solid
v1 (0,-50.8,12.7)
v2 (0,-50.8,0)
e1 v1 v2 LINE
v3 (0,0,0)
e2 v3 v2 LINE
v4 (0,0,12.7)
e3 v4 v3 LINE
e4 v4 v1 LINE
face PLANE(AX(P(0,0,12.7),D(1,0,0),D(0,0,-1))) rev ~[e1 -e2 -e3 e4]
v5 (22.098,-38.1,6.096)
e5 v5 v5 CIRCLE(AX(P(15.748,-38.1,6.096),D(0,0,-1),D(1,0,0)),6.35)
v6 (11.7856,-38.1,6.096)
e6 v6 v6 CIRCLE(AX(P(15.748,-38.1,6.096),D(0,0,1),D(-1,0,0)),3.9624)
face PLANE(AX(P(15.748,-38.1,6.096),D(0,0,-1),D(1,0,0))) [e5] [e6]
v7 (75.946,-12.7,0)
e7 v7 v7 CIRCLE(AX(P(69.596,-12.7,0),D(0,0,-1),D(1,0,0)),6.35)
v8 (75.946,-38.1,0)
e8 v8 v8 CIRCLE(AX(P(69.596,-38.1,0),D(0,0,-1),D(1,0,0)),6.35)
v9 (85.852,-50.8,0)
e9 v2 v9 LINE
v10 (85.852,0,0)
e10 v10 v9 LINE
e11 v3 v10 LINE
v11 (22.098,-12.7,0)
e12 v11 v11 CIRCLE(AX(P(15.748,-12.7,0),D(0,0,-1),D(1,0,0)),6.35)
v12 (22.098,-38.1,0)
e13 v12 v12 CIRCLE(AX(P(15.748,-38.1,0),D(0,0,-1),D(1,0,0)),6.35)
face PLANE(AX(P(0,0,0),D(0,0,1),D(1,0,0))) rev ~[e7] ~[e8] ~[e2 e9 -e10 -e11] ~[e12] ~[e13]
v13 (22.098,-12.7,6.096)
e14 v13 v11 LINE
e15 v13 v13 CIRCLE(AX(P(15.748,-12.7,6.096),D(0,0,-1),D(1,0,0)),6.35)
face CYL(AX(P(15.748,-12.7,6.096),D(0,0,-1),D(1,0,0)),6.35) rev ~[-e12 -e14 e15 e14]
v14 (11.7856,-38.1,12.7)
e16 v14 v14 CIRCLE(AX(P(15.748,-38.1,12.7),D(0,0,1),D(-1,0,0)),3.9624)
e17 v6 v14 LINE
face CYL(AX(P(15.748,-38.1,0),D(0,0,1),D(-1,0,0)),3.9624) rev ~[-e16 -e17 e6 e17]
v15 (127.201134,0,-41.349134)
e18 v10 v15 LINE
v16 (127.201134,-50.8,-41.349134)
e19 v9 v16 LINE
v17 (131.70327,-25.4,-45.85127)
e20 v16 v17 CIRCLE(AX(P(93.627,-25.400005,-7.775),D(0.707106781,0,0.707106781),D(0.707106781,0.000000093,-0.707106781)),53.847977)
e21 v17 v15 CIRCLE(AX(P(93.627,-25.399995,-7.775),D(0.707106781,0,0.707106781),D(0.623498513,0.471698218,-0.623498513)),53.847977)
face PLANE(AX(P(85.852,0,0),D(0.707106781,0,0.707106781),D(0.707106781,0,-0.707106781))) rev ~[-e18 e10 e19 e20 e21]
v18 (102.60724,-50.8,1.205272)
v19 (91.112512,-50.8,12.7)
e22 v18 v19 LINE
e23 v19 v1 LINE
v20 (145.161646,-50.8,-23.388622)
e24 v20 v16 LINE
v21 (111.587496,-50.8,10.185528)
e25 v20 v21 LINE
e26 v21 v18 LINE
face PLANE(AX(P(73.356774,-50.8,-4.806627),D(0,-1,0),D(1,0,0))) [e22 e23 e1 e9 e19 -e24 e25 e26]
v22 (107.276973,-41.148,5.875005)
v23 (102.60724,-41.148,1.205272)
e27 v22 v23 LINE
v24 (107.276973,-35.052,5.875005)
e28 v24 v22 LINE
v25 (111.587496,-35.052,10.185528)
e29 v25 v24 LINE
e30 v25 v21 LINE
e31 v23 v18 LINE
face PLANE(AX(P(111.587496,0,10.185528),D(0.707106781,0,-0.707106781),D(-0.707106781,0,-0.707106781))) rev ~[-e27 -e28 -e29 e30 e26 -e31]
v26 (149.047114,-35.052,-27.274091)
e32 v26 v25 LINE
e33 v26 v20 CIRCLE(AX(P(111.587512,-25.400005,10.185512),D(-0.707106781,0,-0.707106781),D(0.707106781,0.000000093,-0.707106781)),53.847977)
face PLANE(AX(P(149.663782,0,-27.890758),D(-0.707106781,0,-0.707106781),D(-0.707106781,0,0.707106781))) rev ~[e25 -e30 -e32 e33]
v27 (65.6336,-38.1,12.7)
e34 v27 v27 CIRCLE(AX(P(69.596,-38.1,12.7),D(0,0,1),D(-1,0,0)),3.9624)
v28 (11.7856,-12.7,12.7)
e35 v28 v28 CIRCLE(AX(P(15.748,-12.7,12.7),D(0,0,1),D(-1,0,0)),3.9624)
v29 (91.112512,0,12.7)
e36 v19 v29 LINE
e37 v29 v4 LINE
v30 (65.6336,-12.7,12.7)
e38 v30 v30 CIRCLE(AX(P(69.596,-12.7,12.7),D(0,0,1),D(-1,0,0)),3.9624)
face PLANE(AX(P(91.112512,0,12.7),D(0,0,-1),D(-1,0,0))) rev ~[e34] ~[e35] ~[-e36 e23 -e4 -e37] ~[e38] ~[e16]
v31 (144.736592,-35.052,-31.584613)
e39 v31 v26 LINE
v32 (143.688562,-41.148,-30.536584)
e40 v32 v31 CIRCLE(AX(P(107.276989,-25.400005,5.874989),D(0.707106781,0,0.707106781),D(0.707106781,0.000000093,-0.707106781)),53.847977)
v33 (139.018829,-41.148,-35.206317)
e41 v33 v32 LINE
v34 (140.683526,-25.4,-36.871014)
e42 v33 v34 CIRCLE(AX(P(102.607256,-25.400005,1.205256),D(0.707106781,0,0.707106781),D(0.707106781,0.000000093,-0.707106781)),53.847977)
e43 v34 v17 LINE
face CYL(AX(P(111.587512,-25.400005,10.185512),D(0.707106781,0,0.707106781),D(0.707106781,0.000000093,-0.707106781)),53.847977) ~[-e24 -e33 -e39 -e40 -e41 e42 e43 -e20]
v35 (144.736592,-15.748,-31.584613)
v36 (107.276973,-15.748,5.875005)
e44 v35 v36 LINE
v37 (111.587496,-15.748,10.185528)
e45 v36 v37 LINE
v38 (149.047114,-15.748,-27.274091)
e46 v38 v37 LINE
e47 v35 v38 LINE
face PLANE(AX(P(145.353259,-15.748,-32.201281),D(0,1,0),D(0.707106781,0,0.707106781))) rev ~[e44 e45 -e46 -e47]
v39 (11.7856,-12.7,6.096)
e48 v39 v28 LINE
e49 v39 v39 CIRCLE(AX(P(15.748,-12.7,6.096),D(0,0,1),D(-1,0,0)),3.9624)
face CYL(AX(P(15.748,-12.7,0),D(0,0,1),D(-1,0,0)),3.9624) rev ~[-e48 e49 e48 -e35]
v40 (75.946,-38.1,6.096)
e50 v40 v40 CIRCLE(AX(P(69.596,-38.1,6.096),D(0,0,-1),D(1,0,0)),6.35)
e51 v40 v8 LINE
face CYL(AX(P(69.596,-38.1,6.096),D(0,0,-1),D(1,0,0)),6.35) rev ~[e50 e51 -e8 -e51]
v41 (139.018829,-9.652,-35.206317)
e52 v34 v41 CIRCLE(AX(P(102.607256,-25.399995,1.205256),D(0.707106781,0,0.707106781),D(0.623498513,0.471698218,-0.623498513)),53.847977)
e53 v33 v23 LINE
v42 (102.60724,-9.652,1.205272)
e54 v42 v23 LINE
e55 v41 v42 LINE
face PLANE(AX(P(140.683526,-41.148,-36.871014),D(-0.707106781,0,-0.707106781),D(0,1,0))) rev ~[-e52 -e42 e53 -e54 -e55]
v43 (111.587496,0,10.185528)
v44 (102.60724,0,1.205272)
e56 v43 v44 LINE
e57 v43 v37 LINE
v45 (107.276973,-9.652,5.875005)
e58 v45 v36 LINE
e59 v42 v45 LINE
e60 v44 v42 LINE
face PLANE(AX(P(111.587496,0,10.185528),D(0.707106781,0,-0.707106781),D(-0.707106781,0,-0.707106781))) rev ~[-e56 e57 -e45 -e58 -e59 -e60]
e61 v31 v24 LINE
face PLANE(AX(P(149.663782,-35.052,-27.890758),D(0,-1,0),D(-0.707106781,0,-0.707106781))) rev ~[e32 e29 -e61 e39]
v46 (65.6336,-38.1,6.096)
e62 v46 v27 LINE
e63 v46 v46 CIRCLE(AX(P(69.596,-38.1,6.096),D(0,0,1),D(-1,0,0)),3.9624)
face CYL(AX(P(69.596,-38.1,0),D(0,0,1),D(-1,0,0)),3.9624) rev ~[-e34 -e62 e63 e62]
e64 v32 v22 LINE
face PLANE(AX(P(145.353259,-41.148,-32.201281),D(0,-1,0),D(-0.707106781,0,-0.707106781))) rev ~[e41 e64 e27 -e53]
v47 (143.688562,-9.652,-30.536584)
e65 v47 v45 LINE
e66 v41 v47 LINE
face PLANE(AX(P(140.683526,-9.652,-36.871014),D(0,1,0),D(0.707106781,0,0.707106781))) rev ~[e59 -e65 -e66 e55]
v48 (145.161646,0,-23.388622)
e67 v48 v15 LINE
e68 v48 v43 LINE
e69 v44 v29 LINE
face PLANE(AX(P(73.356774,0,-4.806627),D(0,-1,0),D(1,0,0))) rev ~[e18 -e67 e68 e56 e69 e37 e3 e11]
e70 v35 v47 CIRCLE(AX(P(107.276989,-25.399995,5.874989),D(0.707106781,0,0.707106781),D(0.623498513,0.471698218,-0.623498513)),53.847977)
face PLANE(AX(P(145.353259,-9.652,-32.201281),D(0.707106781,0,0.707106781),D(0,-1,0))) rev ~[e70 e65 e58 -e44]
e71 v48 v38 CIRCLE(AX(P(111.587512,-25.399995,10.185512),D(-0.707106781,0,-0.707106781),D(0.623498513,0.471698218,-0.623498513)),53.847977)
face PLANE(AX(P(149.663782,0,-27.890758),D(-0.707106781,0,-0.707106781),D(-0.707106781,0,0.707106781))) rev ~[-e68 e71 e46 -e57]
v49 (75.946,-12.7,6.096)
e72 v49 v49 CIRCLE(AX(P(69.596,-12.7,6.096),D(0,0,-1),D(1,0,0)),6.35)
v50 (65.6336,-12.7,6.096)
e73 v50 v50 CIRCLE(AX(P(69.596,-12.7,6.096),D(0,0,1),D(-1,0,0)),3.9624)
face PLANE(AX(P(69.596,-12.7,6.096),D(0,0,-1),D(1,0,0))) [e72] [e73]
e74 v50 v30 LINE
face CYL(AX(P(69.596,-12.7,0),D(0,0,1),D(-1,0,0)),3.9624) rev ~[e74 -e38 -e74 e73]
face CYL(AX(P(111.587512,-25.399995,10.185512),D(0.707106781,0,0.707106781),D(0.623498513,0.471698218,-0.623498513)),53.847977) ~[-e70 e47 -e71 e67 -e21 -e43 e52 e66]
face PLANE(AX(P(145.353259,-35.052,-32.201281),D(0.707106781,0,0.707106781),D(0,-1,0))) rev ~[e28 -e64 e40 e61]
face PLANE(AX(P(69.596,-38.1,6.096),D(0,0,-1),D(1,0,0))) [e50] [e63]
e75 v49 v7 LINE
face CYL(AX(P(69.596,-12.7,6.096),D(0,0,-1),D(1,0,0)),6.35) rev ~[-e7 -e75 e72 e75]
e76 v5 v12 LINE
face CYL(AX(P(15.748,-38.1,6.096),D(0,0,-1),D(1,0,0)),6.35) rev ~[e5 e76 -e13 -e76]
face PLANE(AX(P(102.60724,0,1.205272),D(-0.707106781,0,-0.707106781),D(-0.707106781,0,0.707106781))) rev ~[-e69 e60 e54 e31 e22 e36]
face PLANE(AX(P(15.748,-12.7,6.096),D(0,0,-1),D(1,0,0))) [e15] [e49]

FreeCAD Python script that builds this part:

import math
import FreeCAD as App
import Part
import Sketcher
Q = App.Units.Quantity

doc = App.newDocument("Part")
body = doc.addObject("PartDesign::Body", "Body")

# Sketch on XZ plane
sketch1 = body.newObject("Sketcher::SketchObject", "Sketch")
sketch1.AttachmentSupport = (doc.getObject("XZ_Plane"), [""])
sketch1.MapMode = "FlatFace"
sketch1.addGeometry([
    Part.LineSegment(App.Vector(0, 0, 0), App.Vector(86, 0, 0)),  # 0
    Part.LineSegment(App.Vector(86, 0, 0), App.Vector(132, -46, 0)),  # 1
    Part.LineSegment(App.Vector(132, -46, 0), App.Vector(150, -28, 0)),  # 2
    Part.LineSegment(App.Vector(150, -28, 0), App.Vector(112, 10, 0)),  # 3
    Part.LineSegment(App.Vector(112, 10, 0), App.Vector(103, 1, 0)),  # 4
    Part.LineSegment(App.Vector(103, 1, 0), App.Vector(91, 13, 0)),  # 5
    Part.LineSegment(App.Vector(91, 13, 0), App.Vector(0, 13, 0)),  # 6
    Part.LineSegment(App.Vector(0, 13, 0), App.Vector(0, 0, 0)),  # 7
], False)
sketch1.addConstraint([
    Sketcher.Constraint("Coincident", 0, 2, 1, 1),
    Sketcher.Constraint("Coincident", 1, 2, 2, 1),
    Sketcher.Constraint("Coincident", 2, 2, 3, 1),
    Sketcher.Constraint("Coincident", 3, 2, 4, 1),
    Sketcher.Constraint("Coincident", 4, 2, 5, 1),
    Sketcher.Constraint("Coincident", 5, 2, 6, 1),
    Sketcher.Constraint("Coincident", 6, 2, 7, 1),
    Sketcher.Constraint("Coincident", 7, 2, 0, 1),
    Sketcher.Constraint("Horizontal", 0),
    Sketcher.Constraint("Horizontal", 6),
    Sketcher.Constraint("Vertical", 7),
    Sketcher.Constraint("Coincident", 7, 2, -1, 1),
    Sketcher.Constraint("Perpendicular", 1, 2),
    Sketcher.Constraint("Perpendicular", 2, 3),
    Sketcher.Constraint("Perpendicular", 3, 4),
    Sketcher.Constraint("Perpendicular", 4, 5),
    Sketcher.Constraint("Distance", 2, Q("1 in")),
    Sketcher.Constraint("DistanceY", 7, 2, 7, 1, Q("0.5 in")),
    Sketcher.Constraint("Angle", 1, Q("-45 deg")),
    Sketcher.Constraint("Distance", 4, Q("0.5 in")),
    Sketcher.Constraint("DistanceX", 0, 1, 0, 2, Q("3.38 in")),
    Sketcher.Constraint("Distance", 3, Q("2.12 in")),
    Sketcher.Constraint("Distance", 5, Q("0.64 in")),
])
pad1 = body.newObject("PartDesign::Pad", "Pad")
pad1.Profile = sketch1
pad1.Length = Q("2 in")

# Sketch on XY plane
sketch2 = body.newObject("Sketcher::SketchObject", "Sketch001")
sketch2.AttachmentSupport = (doc.getObject("XY_Plane"), [""])
sketch2.MapMode = "FlatFace"
sketch2.addGeometry([
    Part.Circle(App.Vector(15.7, -38.1, 0), App.Vector(0, 0, 1), 4),
    Part.Circle(App.Vector(69.6, -38.1, 0), App.Vector(0, 0, 1), 4),
    Part.Circle(App.Vector(69.6, -12.7, 0), App.Vector(0, 0, 1), 4),
    Part.Circle(App.Vector(15.7, -12.7, 0), App.Vector(0, 0, 1), 4),
], False)
sketch2.addConstraint([
    Sketcher.Constraint("Equal", 0, 1),
    Sketcher.Constraint("Equal", 1, 2),
    Sketcher.Constraint("Equal", 2, 3),
    Sketcher.Constraint("Horizontal", 0, 3, 1, 3),
    Sketcher.Constraint("Horizontal", 2, 3, 3, 3),
    Sketcher.Constraint("Vertical", 1, 3, 2, 3),
    Sketcher.Constraint("Vertical", 0, 3, 3, 3),
    Sketcher.Constraint("Diameter", 0, Q("0.312 in")),
    Sketcher.Constraint("DistanceY", 1, 3, 2, 3, Q("1 in")),
    Sketcher.Constraint("DistanceY", 0, 3, -1, 1, Q("1.5 in")),
    Sketcher.Constraint("DistanceX", -1, 1, 0, 3, Q("0.62 in")),
    Sketcher.Constraint("DistanceX", -1, 1, 1, 3, Q("2.74 in")),
])
doc.recompute()
hole = body.newObject("PartDesign::Hole", "Hole")
hole.Profile = sketch2
hole.ThreadType = "None"
hole.Diameter = Q("0.312 in")
hole.DepthType = "ThroughAll"
hole.HoleCutType = "Counterbore"
hole.HoleCutDiameter = Q("0.5 in")
hole.HoleCutDepth = Q("0.24 in")
hole.Reversed = True

# Sketch on an angled plane
sketch3 = body.newObject("Sketcher::SketchObject", "Sketch002")
sketch3.Placement = App.Placement(App.Vector(88.77727, 0, -88.77727), App.Rotation(App.Vector(0, 1, 0), App.Vector(0.707106781, 0, 0.707106781), App.Vector(0.707106781, 0, -0.707106781), "ZXY"))
sketch3.addGeometry([
    Part.LineSegment(App.Vector(-16, 86, 0), App.Vector(-35, 86, 0)),  # 0
    Part.LineSegment(App.Vector(-35, 86, 0), App.Vector(-35, 80, 0)),  # 1
    Part.LineSegment(App.Vector(-35, 80, 0), App.Vector(-41, 80, 0)),  # 2
    Part.LineSegment(App.Vector(-41, 80, 0), App.Vector(-41, 73, 0)),  # 3
    Part.LineSegment(App.Vector(-41, 73, 0), App.Vector(-10, 73, 0)),  # 4
    Part.LineSegment(App.Vector(-10, 73, 0), App.Vector(-10, 80, 0)),  # 5
    Part.LineSegment(App.Vector(-10, 80, 0), App.Vector(-16, 80, 0)),  # 6
    Part.LineSegment(App.Vector(-16, 80, 0), App.Vector(-16, 86, 0)),  # 7
], False)
sketch3.addConstraint([
    Sketcher.Constraint("Coincident", 0, 2, 1, 1),
    Sketcher.Constraint("Coincident", 1, 2, 2, 1),
    Sketcher.Constraint("Coincident", 2, 2, 3, 1),
    Sketcher.Constraint("Coincident", 3, 2, 4, 1),
    Sketcher.Constraint("Coincident", 4, 2, 5, 1),
    Sketcher.Constraint("Coincident", 5, 2, 6, 1),
    Sketcher.Constraint("Coincident", 6, 2, 7, 1),
    Sketcher.Constraint("Coincident", 7, 2, 0, 1),
    Sketcher.Constraint("Horizontal", 0),
    Sketcher.Constraint("Vertical", 1),
    Sketcher.Constraint("Horizontal", 2),
    Sketcher.Constraint("Vertical", 3),
    Sketcher.Constraint("Horizontal", 4),
    Sketcher.Constraint("Vertical", 5),
    Sketcher.Constraint("Horizontal", 6),
    Sketcher.Constraint("Vertical", 7),
    Sketcher.Constraint("Horizontal", 2, 2, 5, 2),
    Sketcher.Constraint("Equal", 2, 6),
    Sketcher.Constraint("Equal", 6, 1),
    Sketcher.Constraint("DistanceX", 1, 2, 4, 2, Q("1 in")),
    Sketcher.Constraint("DistanceX", 0, 2, 0, 1, Q("0.76 in")),
    Sketcher.Constraint("DistanceY", 3, 2, 3, 1, Q("0.26 in")),
    Sketcher.Constraint("DistanceX", 0, 2, -1, 1, Q("1.38 in")),
    Sketcher.Constraint("DistanceY", -1, 1, 0, 2, Q("86.106531 mm")),
])
pocket1 = body.newObject("PartDesign::Pocket", "Pocket")
pocket1.Profile = sketch3
pocket1.Type = "ThroughAll"

# Sketch on an angled plane
sketch4 = body.newObject("Sketcher::SketchObject", "Sketch003")
sketch4.Placement = App.Placement(App.Vector(60.886512, 0, 60.886512), App.Rotation(App.Vector(0.707106781, 0, -0.707106781), App.Vector(0, 0.999999999, 0), App.Vector(0.707106781, 0, 0.707106781), "ZXY"))
sketch4.addGeometry([
    Part.ArcOfCircle(Part.Circle(App.Vector(72, -25, 0), App.Vector(0, 0, 1), 54), math.radians(0), math.radians(28)),  # 0
    Part.LineSegment(App.Vector(126, -25, 0), App.Vector(126, 0, 0)),  # 1
    Part.LineSegment(App.Vector(126, 0, 0), App.Vector(119, 0, 0)),  # 2
    Part.ArcOfCircle(Part.Circle(App.Vector(72, -25, 0), App.Vector(0, 0, 1), 54), math.radians(-28), math.radians(0)),  # 3
    Part.LineSegment(App.Vector(119, -51, 0), App.Vector(126, -51, 0)),  # 4
    Part.LineSegment(App.Vector(126, -51, 0), App.Vector(126, -25, 0)),  # 5
], False)
sketch4.addConstraint([
    Sketcher.Constraint("Tangent", 0, 1, 1, 1),
    Sketcher.Constraint("Coincident", 1, 2, 2, 1),
    Sketcher.Constraint("Coincident", 2, 2, 0, 2),
    Sketcher.Constraint("Coincident", 3, 1, 4, 1),
    Sketcher.Constraint("Coincident", 4, 2, 5, 1),
    Sketcher.Constraint("Tangent", 5, 2, 3, 2),
    Sketcher.Constraint("Vertical", 1),
    Sketcher.Constraint("Horizontal", 2),
    Sketcher.Constraint("Horizontal", 4),
    Sketcher.Constraint("Vertical", 5),
    Sketcher.Constraint("Coincident", 3, 3, 0, 3),
    Sketcher.Constraint("Equal", 0, 3),
    Sketcher.Constraint("PointOnObject", 1, 2, -1),
    Sketcher.Constraint("Vertical", 2, 2, 3, 1),
    Sketcher.Constraint("DistanceY", 1, 1, 1, 2, Q("1 in")),
    Sketcher.Constraint("Radius", 0, Q("53.847977 mm")),
    Sketcher.Constraint("DistanceX", -1, 1, 0, 3, Q("71.702042 mm")),
])
pocket2 = body.newObject("PartDesign::Pocket", "Pocket001")
pocket2.Profile = sketch4
pocket2.Type = "ThroughAll"

doc.recompute()
